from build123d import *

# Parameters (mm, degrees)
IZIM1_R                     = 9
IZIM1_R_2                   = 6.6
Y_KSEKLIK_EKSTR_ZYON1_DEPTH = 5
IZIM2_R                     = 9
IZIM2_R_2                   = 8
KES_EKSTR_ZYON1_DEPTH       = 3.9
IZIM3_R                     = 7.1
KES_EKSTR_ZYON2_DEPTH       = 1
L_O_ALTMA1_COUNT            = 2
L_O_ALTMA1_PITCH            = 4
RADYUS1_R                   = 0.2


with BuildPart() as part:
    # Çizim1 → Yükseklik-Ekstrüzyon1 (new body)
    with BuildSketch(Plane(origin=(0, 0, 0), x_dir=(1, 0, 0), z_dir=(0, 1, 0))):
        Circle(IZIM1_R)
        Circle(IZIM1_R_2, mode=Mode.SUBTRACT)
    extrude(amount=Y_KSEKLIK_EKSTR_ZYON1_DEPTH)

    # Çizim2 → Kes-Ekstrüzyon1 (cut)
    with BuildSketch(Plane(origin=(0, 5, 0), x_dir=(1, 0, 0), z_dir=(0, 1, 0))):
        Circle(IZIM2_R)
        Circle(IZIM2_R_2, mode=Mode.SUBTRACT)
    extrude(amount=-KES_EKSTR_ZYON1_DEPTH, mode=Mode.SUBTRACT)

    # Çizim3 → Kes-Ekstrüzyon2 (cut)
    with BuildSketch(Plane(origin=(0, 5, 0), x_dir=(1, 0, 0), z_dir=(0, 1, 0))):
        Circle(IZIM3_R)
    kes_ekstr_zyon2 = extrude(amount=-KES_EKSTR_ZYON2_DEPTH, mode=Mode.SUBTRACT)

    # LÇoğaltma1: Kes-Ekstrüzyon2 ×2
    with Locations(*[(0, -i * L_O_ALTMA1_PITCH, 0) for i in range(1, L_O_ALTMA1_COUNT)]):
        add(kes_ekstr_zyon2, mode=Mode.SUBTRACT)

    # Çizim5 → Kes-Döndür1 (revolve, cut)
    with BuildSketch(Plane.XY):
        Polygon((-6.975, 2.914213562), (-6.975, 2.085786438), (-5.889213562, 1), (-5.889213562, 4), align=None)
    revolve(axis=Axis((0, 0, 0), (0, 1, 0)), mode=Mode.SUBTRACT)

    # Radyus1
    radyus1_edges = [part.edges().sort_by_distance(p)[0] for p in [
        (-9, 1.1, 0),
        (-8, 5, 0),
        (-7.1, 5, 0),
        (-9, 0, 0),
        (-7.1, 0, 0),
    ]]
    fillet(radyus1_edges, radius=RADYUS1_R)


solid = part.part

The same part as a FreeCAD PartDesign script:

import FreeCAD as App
import Part
import Sketcher
from FreeCAD import Vector


def edges_at(feature, points):
    """Names of the edges that pass closest to the given points."""
    edges = feature.Shape.Edges
    near = lambda p: min(range(len(edges)), key=lambda i: edges[i].distToShape(Part.Vertex(*p))[0])
    return sorted({f"Edge{near(p) + 1}" for p in points})

doc = App.newDocument("Part")
params = doc.addObject("Spreadsheet::Sheet", "Params")
for row, (alias, value) in enumerate([
    ("sketch1_diameter", "18 mm"),
    ("sketch1_diameter2", "13.2 mm"),
    ("pad1_length", "5 mm"),
    ("sketch2_diameter", "18 mm"),
    ("sketch2_diameter2", "16 mm"),
    ("pocket1_length", "3.9 mm"),
    ("sketch3_diameter", "14.2 mm"),
    ("pocket2_length", "1 mm"),
    ("linearpattern_pitch", "4 mm"),
    ("sketch4_height", "3 mm"),
    ("groove_angle", "360 deg"),
    ("fillet_radius", "0.2 mm"),
], start=1):
    params.set(f"A{row}", alias)
    params.set(f"B{row}", "=" + value)
    params.setAlias(f"B{row}", alias)

body = doc.addObject("PartDesign::Body", "Body")

# Sketch on XZ plane
sketch1 = doc.addObject("Sketcher::SketchObject", "Sketch")
body.addObject(sketch1)
sketch1.AttachmentSupport = (doc.XZ_Plane, [""])
sketch1.MapMode = "FlatFace"
sketch1.addGeometry([
    Part.Circle(Vector(0, 0, 0), Vector(0, 0, 1), 9),
    Part.Circle(Vector(0, 0, 0), Vector(0, 0, 1), 7),
], False)
sketch1.addConstraint([
    Sketcher.Constraint("Coincident", 0, 3, -1, 1),
    Sketcher.Constraint("Coincident", 1, 3, -1, 1),
    Sketcher.Constraint("Diameter", 0, 18.0),
    Sketcher.Constraint("Diameter", 1, 13.2),
])
sketch1.setExpression("Constraints[2]", "Params.sketch1_diameter")
sketch1.setExpression("Constraints[3]", "Params.sketch1_diameter2")
pad1 = doc.addObject("PartDesign::Pad", "Pad")
body.addObject(pad1)
pad1.Profile = sketch1
pad1.setExpression("Length", "Params.pad1_length")
pad1.Reversed = True

# Sketch on XZ plane
sketch2 = doc.addObject("Sketcher::SketchObject", "Sketch001")
body.addObject(sketch2)
sketch2.AttachmentSupport = (doc.XZ_Plane, [""])
sketch2.MapMode = "FlatFace"
sketch2.AttachmentOffset = App.Placement(Vector(0, 0, -5), App.Rotation())
sketch2.addGeometry([
    Part.Circle(Vector(0, 0, 0), Vector(0, 0, 1), 9),
    Part.Circle(Vector(0, 0, 0), Vector(0, 0, 1), 8),
], False)
sketch2.addConstraint([
    Sketcher.Constraint("Coincident", 0, 3, -1, 1),
    Sketcher.Constraint("Coincident", 1, 3, -1, 1),
    Sketcher.Constraint("Diameter", 0, 18.0),
    Sketcher.Constraint("Diameter", 1, 16.0),
])
sketch2.setExpression("Constraints[2]", "Params.sketch2_diameter")
sketch2.setExpression("Constraints[3]", "Params.sketch2_diameter2")
pocket1 = doc.addObject("PartDesign::Pocket", "Pocket")
body.addObject(pocket1)
pocket1.Profile = sketch2
pocket1.setExpression("Length", "Params.pocket1_length")
pocket1.Reversed = True

# Sketch on XZ plane
sketch3 = doc.addObject("Sketcher::SketchObject", "Sketch002")
body.addObject(sketch3)
sketch3.AttachmentSupport = (doc.XZ_Plane, [""])
sketch3.MapMode = "FlatFace"
sketch3.AttachmentOffset = App.Placement(Vector(0, 0, -5), App.Rotation())
sketch3.addGeometry(Part.Circle(Vector(0, 0, 0), Vector(0, 0, 1), 7), False)
sketch3.addConstraint([
    Sketcher.Constraint("Coincident", 0, 3, -1, 1),
    Sketcher.Constraint("Diameter", 0, 14.2),
])
sketch3.setExpression("Constraints[1]", "Params.sketch3_diameter")
pocket2 = doc.addObject("PartDesign::Pocket", "Pocket001")
body.addObject(pocket2)
pocket2.Profile = sketch3
pocket2.setExpression("Length", "Params.pocket2_length")
pocket2.Reversed = True
doc.recompute()

linearpattern = doc.addObject("PartDesign::LinearPattern", "LinearPattern")
body.addObject(linearpattern)
linearpattern.Originals = [pocket2]
linearpattern.Direction = (doc.Y_Axis, [""])
linearpattern.Mode = "offset"
linearpattern.setExpression("Offset", "Params.linearpattern_pitch")
linearpattern.Occurrences = 2
linearpattern.Reversed = True
body.Tip = linearpattern

# Sketch on XY plane
sketch4 = doc.addObject("Sketcher::SketchObject", "Sketch003")
body.addObject(sketch4)
sketch4.AttachmentSupport = (doc.XY_Plane, [""])
sketch4.MapMode = "FlatFace"
sketch4.addGeometry([
    Part.LineSegment(Vector(-7, 2.9, 0), Vector(-7, 2.1, 0)),
    Part.LineSegment(Vector(-7, 2.1, 0), Vector(-5.9, 1, 0)),
    Part.LineSegment(Vector(-5.9, 1, 0), Vector(-5.9, 4, 0)),
    Part.LineSegment(Vector(-5.9, 4, 0), Vector(-7, 2.9, 0)),
], False)
sketch4.addConstraint([
    Sketcher.Constraint("Coincident", 0, 2, 1, 1),
    Sketcher.Constraint("Coincident", 1, 2, 2, 1),
    Sketcher.Constraint("Coincident", 2, 2, 3, 1),
    Sketcher.Constraint("Coincident", 3, 2, 0, 1),
    Sketcher.Constraint("Vertical", 0),
    Sketcher.Constraint("Vertical", 2),
    Sketcher.Constraint("Perpendicular", 1, 3),
    Sketcher.Constraint("Equal", 1, 3),
    Sketcher.Constraint("DistanceY", 2, 1, 2, 2, 3.0),
    Sketcher.Constraint("DistanceY", -1, 1, 1, 2, 1.0),
    Sketcher.Constraint("DistanceX", 0, 2, -1, 1, 6.975),
    Sketcher.Constraint("DistanceY", 0, 2, 0, 1, 0.828427),
])
sketch4.setExpression("Constraints[8]", "Params.sketch4_height")
groove = doc.addObject("PartDesign::Groove", "Groove")
body.addObject(groove)
groove.Profile = sketch4
groove.ReferenceAxis = (sketch4, ["V_Axis"])
groove.setExpression("Angle", "Params.groove_angle")
doc.recompute()

fillet = doc.addObject("PartDesign::Fillet", "Fillet")
body.addObject(fillet)
fillet.Base = (groove, edges_at(groove, [
    (-9, 1.1, 0),
    (-8, 5, 0),
    (-7.1, 5, 0),
    (-9, 0, 0),
    (-7.1, 0, 0),
]))
fillet.setExpression("Radius", "Params.fillet_radius")

doc.recompute()
